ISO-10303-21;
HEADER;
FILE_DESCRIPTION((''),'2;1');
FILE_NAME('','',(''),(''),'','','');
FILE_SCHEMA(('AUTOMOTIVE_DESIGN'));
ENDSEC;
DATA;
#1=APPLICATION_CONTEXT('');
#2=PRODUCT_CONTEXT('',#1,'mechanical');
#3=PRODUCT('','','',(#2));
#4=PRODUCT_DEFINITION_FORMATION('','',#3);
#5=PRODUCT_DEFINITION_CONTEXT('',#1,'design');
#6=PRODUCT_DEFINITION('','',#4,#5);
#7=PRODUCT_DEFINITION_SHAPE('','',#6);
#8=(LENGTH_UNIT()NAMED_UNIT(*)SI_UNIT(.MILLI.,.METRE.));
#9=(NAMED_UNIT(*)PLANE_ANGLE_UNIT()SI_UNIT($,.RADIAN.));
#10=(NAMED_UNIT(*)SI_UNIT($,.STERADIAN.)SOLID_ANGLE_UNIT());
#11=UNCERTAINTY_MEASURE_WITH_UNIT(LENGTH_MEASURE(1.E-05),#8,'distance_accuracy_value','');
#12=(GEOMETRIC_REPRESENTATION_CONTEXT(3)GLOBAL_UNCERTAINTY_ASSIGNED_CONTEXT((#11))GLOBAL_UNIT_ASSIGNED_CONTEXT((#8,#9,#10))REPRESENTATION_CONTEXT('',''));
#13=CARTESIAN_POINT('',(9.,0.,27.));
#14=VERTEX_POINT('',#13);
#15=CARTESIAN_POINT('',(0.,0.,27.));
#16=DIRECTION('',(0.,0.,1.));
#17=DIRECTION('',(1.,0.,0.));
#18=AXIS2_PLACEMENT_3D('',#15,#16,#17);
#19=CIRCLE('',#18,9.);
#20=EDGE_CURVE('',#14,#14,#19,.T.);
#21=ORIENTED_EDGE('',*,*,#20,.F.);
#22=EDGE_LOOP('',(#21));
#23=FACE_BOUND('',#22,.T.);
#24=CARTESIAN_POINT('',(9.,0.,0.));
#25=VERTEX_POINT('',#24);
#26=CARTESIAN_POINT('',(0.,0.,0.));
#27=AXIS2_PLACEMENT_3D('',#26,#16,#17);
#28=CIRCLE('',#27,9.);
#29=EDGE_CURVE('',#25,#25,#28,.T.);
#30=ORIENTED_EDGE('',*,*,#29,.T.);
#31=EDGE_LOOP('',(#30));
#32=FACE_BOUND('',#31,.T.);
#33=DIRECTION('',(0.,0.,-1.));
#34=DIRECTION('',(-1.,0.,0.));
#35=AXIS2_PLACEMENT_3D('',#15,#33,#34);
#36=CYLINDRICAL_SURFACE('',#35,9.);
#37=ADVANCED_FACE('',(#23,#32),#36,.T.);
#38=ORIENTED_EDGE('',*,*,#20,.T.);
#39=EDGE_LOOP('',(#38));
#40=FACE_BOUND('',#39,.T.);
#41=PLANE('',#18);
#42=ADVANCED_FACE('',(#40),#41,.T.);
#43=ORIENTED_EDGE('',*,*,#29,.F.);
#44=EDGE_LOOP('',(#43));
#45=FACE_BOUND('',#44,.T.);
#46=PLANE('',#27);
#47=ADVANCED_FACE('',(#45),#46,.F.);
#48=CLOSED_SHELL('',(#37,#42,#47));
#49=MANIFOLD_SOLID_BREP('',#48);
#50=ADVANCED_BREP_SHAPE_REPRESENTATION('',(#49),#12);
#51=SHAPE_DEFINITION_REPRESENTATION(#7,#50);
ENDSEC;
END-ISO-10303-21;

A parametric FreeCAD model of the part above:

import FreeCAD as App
import Part
import Sketcher

V = App.Vector

doc = App.newDocument("Part")
params = doc.addObject("Spreadsheet::Sheet", "Params")
for row, (alias, value) in enumerate([
    ("sketch1_diameter", "18 mm"),
    ("pad1_length", "27 mm"),
], start=1):
    params.set(f"A{row}", alias)
    params.set(f"B{row}", "=" + value)
    params.setAlias(f"B{row}", alias)

body = doc.addObject("PartDesign::Body", "Body")

# Sketch on XY plane
sketch1 = body.newObject("Sketcher::SketchObject", "Sketch")
sketch1.AttachmentSupport = (doc.getObject("XY_Plane"), [""])
sketch1.MapMode = "FlatFace"
sketch1.addGeometry(Part.Circle(V(0, 0, 0), V(0, 0, 1), 9), False)
sketch1.addConstraint(Sketcher.Constraint("Coincident", 0, 3, -1, 1))
sketch1.addConstraint(Sketcher.Constraint("Diameter", 0, 18.0))
sketch1.setExpression("Constraints[1]", "Params.sketch1_diameter")
pad1 = body.newObject("PartDesign::Pad", "Pad")
pad1.Profile = sketch1
pad1.setExpression("Length", "Params.pad1_length")

doc.recompute()
